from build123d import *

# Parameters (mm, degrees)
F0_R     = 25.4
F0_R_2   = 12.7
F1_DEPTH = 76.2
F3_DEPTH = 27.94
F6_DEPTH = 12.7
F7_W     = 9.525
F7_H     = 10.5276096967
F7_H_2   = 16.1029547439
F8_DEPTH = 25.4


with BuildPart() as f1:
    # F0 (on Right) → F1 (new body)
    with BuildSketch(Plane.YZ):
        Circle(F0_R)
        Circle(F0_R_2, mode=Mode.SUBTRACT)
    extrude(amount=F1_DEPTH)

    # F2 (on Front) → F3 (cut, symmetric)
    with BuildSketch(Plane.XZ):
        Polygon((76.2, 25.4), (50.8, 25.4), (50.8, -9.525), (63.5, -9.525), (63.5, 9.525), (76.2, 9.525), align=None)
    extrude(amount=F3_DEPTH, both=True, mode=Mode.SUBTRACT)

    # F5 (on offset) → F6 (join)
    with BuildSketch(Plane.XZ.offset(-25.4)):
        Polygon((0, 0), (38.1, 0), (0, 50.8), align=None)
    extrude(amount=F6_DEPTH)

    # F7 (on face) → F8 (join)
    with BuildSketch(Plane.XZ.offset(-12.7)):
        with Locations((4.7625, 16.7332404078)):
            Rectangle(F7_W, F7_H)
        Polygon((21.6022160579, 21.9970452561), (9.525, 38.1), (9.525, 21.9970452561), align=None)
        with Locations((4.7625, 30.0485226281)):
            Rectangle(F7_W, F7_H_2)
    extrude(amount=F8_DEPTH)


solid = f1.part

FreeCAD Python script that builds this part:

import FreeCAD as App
import Part
import Sketcher
from FreeCAD import Vector
Q = App.Units.Quantity

doc = App.newDocument("Part")
body = doc.addObject("PartDesign::Body", "Body")

# Sketch on YZ plane
sketch1 = body.newObject("Sketcher::SketchObject", "Sketch")
sketch1.AttachmentSupport = (doc.getObject("YZ_Plane"), [""])
sketch1.MapMode = "FlatFace"
sketch1.addGeometry(Part.Circle(Vector(0, 0, 0), Vector(0, 0, 1), 25), False)
sketch1.addGeometry(Part.Circle(Vector(0, 0, 0), Vector(0, 0, 1), 13), False)
sketch1.addConstraint(Sketcher.Constraint("Coincident", 0, 3, -1, 1))
sketch1.addConstraint(Sketcher.Constraint("Coincident", 1, 3, -1, 1))
sketch1.addConstraint(Sketcher.Constraint("Diameter", 0, Q("2 in")))
sketch1.addConstraint(Sketcher.Constraint("Diameter", 1, Q("1 in")))
pad1 = body.newObject("PartDesign::Pad", "Pad")
pad1.Profile = sketch1
pad1.Length = Q("3 in")

# Sketch on XZ plane
sketch2 = body.newObject("Sketcher::SketchObject", "Sketch001")
sketch2.AttachmentSupport = (doc.getObject("XZ_Plane"), [""])
sketch2.MapMode = "FlatFace"
sketch2.addGeometry(Part.LineSegment(Vector(76, 25, 0), Vector(51, 25, 0)), False)
sketch2.addGeometry(Part.LineSegment(Vector(51, 25, 0), Vector(51, -10, 0)), False)
sketch2.addGeometry(Part.LineSegment(Vector(51, -10, 0), Vector(64, -10, 0)), False)
sketch2.addGeometry(Part.LineSegment(Vector(64, -10, 0), Vector(64, 10, 0)), False)
sketch2.addGeometry(Part.LineSegment(Vector(64, 10, 0), Vector(76, 10, 0)), False)
sketch2.addGeometry(Part.LineSegment(Vector(76, 10, 0), Vector(76, 25, 0)), False)
sketch2.addConstraint(Sketcher.Constraint("Coincident", 0, 2, 1, 1))
sketch2.addConstraint(Sketcher.Constraint("Coincident", 1, 2, 2, 1))
sketch2.addConstraint(Sketcher.Constraint("Coincident", 2, 2, 3, 1))
sketch2.addConstraint(Sketcher.Constraint("Coincident", 3, 2, 4, 1))
sketch2.addConstraint(Sketcher.Constraint("Coincident", 4, 2, 5, 1))
sketch2.addConstraint(Sketcher.Constraint("Coincident", 5, 2, 0, 1))
sketch2.addConstraint(Sketcher.Constraint("Horizontal", 0))
sketch2.addConstraint(Sketcher.Constraint("Vertical", 1))
sketch2.addConstraint(Sketcher.Constraint("Horizontal", 2))
sketch2.addConstraint(Sketcher.Constraint("Vertical", 3))
sketch2.addConstraint(Sketcher.Constraint("Horizontal", 4))
sketch2.addConstraint(Sketcher.Constraint("Vertical", 5))
sketch2.addConstraint(Sketcher.Constraint("Equal", 2, 4))
sketch2.addConstraint(Sketcher.Constraint("DistanceX", 0, 2, 0, 1, Q("1 in")))
sketch2.addConstraint(Sketcher.Constraint("DistanceX", -1, 1, 0, 2, Q("2 in")))
sketch2.addConstraint(Sketcher.Constraint("DistanceY", -1, 1, 0, 2, Q("1 in")))
sketch2.addConstraint(Sketcher.Constraint("DistanceY", 3, 1, 3, 2, Q("0.75 in")))
sketch2.addConstraint(Sketcher.Constraint("DistanceY", 1, 2, 1, 1, Q("1.375 in")))
pocket1 = body.newObject("PartDesign::Pocket", "Pocket")
pocket1.Profile = sketch2
pocket1.Length = Q("2.2 in")
pocket1.Midplane = True

# Sketch on XZ plane
sketch3 = body.newObject("Sketcher::SketchObject", "Sketch002")
sketch3.AttachmentSupport = (doc.getObject("XZ_Plane"), [""])
sketch3.MapMode = "FlatFace"
sketch3.AttachmentOffset = App.Placement(Vector(0, 0, -1 * 25.4), App.Rotation())
sketch3.addGeometry(Part.LineSegment(Vector(0, 0, 0), Vector(38, 0, 0)), False)
sketch3.addGeometry(Part.LineSegment(Vector(38, 0, 0), Vector(0, 51, 0)), False)
sketch3.addGeometry(Part.LineSegment(Vector(0, 51, 0), Vector(0, 0, 0)), False)
sketch3.addConstraint(Sketcher.Constraint("Coincident", 0, 2, 1, 1))
sketch3.addConstraint(Sketcher.Constraint("Coincident", 1, 2, 2, 1))
sketch3.addConstraint(Sketcher.Constraint("Coincident", 2, 2, 0, 1))
sketch3.addConstraint(Sketcher.Constraint("Horizontal", 0))
sketch3.addConstraint(Sketcher.Constraint("Vertical", 2))
sketch3.addConstraint(Sketcher.Constraint("Coincident", 2, 2, -1, 1))
sketch3.addConstraint(Sketcher.Constraint("DistanceY", 2, 2, 2, 1, Q("2 in")))
sketch3.addConstraint(Sketcher.Constraint("DistanceX", 0, 1, 0, 2, Q("1.5 in")))
pad2 = body.newObject("PartDesign::Pad", "Pad001")
pad2.Profile = sketch3
pad2.Length = Q("0.5 in")

# Sketch on XZ plane
sketch4 = body.newObject("Sketcher::SketchObject", "Sketch003")
sketch4.AttachmentSupport = (doc.getObject("XZ_Plane"), [""])
sketch4.MapMode = "FlatFace"
sketch4.AttachmentOffset = App.Placement(Vector(0, 0, -0.5 * 25.4), App.Rotation())
sketch4.addGeometry(Part.LineSegment(Vector(0, 11, 0), Vector(10, 11, 0)), False)
sketch4.addGeometry(Part.LineSegment(Vector(10, 11, 0), Vector(10, 22, 0)), False)
sketch4.addGeometry(Part.LineSegment(Vector(10, 22, 0), Vector(22, 22, 0)), False)
sketch4.addGeometry(Part.LineSegment(Vector(22, 22, 0), Vector(10, 38, 0)), False)
sketch4.addGeometry(Part.LineSegment(Vector(10, 38, 0), Vector(0, 38, 0)), False)
sketch4.addGeometry(Part.LineSegment(Vector(0, 38, 0), Vector(0, 11, 0)), False)
sketch4.addConstraint(Sketcher.Constraint("Coincident", 0, 2, 1, 1))
sketch4.addConstraint(Sketcher.Constraint("Coincident", 1, 2, 2, 1))
sketch4.addConstraint(Sketcher.Constraint("Coincident", 2, 2, 3, 1))
sketch4.addConstraint(Sketcher.Constraint("Coincident", 3, 2, 4, 1))
sketch4.addConstraint(Sketcher.Constraint("Coincident", 4, 2, 5, 1))
sketch4.addConstraint(Sketcher.Constraint("Coincident", 5, 2, 0, 1))
sketch4.addConstraint(Sketcher.Constraint("Horizontal", 0))
sketch4.addConstraint(Sketcher.Constraint("Vertical", 1))
sketch4.addConstraint(Sketcher.Constraint("Horizontal", 2))
sketch4.addConstraint(Sketcher.Constraint("Horizontal", 4))
sketch4.addConstraint(Sketcher.Constraint("Vertical", 5))
sketch4.addConstraint(Sketcher.Constraint("PointOnObject", 4, 2, -2))
sketch4.addConstraint(Sketcher.Constraint("Vertical", 1, 2, 3, 2))
sketch4.addConstraint(Sketcher.Constraint("DistanceY", -1, 1, 3, 2, Q("1.5 in")))
sketch4.addConstraint(Sketcher.Constraint("DistanceX", 0, 1, 0, 2, Q("0.375 in")))
sketch4.addConstraint(Sketcher.Constraint("DistanceY", 1, 1, 1, 2, 10.52761))
sketch4.addConstraint(Sketcher.Constraint("DistanceX", 2, 1, 2, 2, 12.077216))
sketch4.addConstraint(Sketcher.Constraint("DistanceY", 5, 2, 5, 1, 26.630564))
pad3 = body.newObject("PartDesign::Pad", "Pad002")
pad3.Profile = sketch4
pad3.Length = Q("1 in")

doc.recompute()
